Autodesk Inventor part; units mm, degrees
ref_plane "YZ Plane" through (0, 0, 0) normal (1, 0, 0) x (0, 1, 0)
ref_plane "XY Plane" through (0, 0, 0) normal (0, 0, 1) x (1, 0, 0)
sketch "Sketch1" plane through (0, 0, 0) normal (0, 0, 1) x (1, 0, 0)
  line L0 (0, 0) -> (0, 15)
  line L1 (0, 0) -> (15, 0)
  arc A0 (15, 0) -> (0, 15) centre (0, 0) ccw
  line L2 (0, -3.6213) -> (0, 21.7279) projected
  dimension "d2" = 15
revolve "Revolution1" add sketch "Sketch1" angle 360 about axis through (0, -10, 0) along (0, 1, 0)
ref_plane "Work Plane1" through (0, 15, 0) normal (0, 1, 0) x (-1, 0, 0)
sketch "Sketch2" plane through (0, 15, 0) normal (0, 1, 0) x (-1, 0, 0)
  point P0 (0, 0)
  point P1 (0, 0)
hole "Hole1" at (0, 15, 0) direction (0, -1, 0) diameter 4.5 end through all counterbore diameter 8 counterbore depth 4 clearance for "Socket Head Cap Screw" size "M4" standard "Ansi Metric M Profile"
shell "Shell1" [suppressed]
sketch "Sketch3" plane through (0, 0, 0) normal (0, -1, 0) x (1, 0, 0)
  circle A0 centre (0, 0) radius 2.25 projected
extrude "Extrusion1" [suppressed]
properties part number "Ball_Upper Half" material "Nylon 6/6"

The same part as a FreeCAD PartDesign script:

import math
import FreeCAD as App
import Part
import Sketcher
from FreeCAD import Vector
Q = App.Units.Quantity

doc = App.newDocument("Part")
body = doc.addObject("PartDesign::Body", "Body")

# Sketch on XY plane
sketch1 = doc.addObject("Sketcher::SketchObject", "Sketch")
body.addObject(sketch1)
sketch1.AttachmentSupport = (doc.XY_Plane, [""])
sketch1.MapMode = "FlatFace"
sketch1.addGeometry([
    Part.LineSegment(Vector(0, 15, 0), Vector(0, 0, 0)),
    Part.LineSegment(Vector(0, 0, 0), Vector(15, 0, 0)),
    Part.ArcOfCircle(Part.Circle(Vector(0, 0, 0), Vector(0, 0, 1), 15), math.radians(0), math.radians(90)),
], False)
sketch1.addConstraint([
    Sketcher.Constraint("Coincident", 0, 2, 1, 1),
    Sketcher.Constraint("Coincident", 1, 2, 2, 1),
    Sketcher.Constraint("Coincident", 2, 2, 0, 1),
    Sketcher.Constraint("Vertical", 0),
    Sketcher.Constraint("Horizontal", 1),
    Sketcher.Constraint("Coincident", 2, 3, -1, 1),
    Sketcher.Constraint("Coincident", 0, 2, -1, 1),
    Sketcher.Constraint("Radius", 2, Q("15 mm")),
])
revolution = doc.addObject("PartDesign::Revolution", "Revolution")
body.addObject(revolution)
revolution.Profile = sketch1
revolution.ReferenceAxis = (sketch1, ["V_Axis"])
revolution.Angle = 360

# Sketch on XZ plane
sketch2 = doc.addObject("Sketcher::SketchObject", "Sketch001")
body.addObject(sketch2)
sketch2.AttachmentSupport = (doc.XZ_Plane, [""])
sketch2.MapMode = "FlatFace"
sketch2.AttachmentOffset = App.Placement(Vector(0, 0, -15), App.Rotation())
sketch2.addGeometry(Part.Circle(Vector(0, 0, 0), Vector(0, 0, 1), 2.2), False)
sketch2.addConstraint([
    Sketcher.Constraint("Coincident", 0, 3, -1, 1),
    Sketcher.Constraint("Diameter", 0, Q("4.5 mm")),
])
doc.recompute()
hole = doc.addObject("PartDesign::Hole", "Hole")
body.addObject(hole)
hole.Profile = sketch2
hole.ThreadType = "None"
hole.Diameter = 4.5
hole.DepthType = "ThroughAll"
hole.HoleCutType = "Counterbore"
hole.HoleCutDiameter = 8
hole.HoleCutDepth = 4
hole.Reversed = True

doc.recompute()
